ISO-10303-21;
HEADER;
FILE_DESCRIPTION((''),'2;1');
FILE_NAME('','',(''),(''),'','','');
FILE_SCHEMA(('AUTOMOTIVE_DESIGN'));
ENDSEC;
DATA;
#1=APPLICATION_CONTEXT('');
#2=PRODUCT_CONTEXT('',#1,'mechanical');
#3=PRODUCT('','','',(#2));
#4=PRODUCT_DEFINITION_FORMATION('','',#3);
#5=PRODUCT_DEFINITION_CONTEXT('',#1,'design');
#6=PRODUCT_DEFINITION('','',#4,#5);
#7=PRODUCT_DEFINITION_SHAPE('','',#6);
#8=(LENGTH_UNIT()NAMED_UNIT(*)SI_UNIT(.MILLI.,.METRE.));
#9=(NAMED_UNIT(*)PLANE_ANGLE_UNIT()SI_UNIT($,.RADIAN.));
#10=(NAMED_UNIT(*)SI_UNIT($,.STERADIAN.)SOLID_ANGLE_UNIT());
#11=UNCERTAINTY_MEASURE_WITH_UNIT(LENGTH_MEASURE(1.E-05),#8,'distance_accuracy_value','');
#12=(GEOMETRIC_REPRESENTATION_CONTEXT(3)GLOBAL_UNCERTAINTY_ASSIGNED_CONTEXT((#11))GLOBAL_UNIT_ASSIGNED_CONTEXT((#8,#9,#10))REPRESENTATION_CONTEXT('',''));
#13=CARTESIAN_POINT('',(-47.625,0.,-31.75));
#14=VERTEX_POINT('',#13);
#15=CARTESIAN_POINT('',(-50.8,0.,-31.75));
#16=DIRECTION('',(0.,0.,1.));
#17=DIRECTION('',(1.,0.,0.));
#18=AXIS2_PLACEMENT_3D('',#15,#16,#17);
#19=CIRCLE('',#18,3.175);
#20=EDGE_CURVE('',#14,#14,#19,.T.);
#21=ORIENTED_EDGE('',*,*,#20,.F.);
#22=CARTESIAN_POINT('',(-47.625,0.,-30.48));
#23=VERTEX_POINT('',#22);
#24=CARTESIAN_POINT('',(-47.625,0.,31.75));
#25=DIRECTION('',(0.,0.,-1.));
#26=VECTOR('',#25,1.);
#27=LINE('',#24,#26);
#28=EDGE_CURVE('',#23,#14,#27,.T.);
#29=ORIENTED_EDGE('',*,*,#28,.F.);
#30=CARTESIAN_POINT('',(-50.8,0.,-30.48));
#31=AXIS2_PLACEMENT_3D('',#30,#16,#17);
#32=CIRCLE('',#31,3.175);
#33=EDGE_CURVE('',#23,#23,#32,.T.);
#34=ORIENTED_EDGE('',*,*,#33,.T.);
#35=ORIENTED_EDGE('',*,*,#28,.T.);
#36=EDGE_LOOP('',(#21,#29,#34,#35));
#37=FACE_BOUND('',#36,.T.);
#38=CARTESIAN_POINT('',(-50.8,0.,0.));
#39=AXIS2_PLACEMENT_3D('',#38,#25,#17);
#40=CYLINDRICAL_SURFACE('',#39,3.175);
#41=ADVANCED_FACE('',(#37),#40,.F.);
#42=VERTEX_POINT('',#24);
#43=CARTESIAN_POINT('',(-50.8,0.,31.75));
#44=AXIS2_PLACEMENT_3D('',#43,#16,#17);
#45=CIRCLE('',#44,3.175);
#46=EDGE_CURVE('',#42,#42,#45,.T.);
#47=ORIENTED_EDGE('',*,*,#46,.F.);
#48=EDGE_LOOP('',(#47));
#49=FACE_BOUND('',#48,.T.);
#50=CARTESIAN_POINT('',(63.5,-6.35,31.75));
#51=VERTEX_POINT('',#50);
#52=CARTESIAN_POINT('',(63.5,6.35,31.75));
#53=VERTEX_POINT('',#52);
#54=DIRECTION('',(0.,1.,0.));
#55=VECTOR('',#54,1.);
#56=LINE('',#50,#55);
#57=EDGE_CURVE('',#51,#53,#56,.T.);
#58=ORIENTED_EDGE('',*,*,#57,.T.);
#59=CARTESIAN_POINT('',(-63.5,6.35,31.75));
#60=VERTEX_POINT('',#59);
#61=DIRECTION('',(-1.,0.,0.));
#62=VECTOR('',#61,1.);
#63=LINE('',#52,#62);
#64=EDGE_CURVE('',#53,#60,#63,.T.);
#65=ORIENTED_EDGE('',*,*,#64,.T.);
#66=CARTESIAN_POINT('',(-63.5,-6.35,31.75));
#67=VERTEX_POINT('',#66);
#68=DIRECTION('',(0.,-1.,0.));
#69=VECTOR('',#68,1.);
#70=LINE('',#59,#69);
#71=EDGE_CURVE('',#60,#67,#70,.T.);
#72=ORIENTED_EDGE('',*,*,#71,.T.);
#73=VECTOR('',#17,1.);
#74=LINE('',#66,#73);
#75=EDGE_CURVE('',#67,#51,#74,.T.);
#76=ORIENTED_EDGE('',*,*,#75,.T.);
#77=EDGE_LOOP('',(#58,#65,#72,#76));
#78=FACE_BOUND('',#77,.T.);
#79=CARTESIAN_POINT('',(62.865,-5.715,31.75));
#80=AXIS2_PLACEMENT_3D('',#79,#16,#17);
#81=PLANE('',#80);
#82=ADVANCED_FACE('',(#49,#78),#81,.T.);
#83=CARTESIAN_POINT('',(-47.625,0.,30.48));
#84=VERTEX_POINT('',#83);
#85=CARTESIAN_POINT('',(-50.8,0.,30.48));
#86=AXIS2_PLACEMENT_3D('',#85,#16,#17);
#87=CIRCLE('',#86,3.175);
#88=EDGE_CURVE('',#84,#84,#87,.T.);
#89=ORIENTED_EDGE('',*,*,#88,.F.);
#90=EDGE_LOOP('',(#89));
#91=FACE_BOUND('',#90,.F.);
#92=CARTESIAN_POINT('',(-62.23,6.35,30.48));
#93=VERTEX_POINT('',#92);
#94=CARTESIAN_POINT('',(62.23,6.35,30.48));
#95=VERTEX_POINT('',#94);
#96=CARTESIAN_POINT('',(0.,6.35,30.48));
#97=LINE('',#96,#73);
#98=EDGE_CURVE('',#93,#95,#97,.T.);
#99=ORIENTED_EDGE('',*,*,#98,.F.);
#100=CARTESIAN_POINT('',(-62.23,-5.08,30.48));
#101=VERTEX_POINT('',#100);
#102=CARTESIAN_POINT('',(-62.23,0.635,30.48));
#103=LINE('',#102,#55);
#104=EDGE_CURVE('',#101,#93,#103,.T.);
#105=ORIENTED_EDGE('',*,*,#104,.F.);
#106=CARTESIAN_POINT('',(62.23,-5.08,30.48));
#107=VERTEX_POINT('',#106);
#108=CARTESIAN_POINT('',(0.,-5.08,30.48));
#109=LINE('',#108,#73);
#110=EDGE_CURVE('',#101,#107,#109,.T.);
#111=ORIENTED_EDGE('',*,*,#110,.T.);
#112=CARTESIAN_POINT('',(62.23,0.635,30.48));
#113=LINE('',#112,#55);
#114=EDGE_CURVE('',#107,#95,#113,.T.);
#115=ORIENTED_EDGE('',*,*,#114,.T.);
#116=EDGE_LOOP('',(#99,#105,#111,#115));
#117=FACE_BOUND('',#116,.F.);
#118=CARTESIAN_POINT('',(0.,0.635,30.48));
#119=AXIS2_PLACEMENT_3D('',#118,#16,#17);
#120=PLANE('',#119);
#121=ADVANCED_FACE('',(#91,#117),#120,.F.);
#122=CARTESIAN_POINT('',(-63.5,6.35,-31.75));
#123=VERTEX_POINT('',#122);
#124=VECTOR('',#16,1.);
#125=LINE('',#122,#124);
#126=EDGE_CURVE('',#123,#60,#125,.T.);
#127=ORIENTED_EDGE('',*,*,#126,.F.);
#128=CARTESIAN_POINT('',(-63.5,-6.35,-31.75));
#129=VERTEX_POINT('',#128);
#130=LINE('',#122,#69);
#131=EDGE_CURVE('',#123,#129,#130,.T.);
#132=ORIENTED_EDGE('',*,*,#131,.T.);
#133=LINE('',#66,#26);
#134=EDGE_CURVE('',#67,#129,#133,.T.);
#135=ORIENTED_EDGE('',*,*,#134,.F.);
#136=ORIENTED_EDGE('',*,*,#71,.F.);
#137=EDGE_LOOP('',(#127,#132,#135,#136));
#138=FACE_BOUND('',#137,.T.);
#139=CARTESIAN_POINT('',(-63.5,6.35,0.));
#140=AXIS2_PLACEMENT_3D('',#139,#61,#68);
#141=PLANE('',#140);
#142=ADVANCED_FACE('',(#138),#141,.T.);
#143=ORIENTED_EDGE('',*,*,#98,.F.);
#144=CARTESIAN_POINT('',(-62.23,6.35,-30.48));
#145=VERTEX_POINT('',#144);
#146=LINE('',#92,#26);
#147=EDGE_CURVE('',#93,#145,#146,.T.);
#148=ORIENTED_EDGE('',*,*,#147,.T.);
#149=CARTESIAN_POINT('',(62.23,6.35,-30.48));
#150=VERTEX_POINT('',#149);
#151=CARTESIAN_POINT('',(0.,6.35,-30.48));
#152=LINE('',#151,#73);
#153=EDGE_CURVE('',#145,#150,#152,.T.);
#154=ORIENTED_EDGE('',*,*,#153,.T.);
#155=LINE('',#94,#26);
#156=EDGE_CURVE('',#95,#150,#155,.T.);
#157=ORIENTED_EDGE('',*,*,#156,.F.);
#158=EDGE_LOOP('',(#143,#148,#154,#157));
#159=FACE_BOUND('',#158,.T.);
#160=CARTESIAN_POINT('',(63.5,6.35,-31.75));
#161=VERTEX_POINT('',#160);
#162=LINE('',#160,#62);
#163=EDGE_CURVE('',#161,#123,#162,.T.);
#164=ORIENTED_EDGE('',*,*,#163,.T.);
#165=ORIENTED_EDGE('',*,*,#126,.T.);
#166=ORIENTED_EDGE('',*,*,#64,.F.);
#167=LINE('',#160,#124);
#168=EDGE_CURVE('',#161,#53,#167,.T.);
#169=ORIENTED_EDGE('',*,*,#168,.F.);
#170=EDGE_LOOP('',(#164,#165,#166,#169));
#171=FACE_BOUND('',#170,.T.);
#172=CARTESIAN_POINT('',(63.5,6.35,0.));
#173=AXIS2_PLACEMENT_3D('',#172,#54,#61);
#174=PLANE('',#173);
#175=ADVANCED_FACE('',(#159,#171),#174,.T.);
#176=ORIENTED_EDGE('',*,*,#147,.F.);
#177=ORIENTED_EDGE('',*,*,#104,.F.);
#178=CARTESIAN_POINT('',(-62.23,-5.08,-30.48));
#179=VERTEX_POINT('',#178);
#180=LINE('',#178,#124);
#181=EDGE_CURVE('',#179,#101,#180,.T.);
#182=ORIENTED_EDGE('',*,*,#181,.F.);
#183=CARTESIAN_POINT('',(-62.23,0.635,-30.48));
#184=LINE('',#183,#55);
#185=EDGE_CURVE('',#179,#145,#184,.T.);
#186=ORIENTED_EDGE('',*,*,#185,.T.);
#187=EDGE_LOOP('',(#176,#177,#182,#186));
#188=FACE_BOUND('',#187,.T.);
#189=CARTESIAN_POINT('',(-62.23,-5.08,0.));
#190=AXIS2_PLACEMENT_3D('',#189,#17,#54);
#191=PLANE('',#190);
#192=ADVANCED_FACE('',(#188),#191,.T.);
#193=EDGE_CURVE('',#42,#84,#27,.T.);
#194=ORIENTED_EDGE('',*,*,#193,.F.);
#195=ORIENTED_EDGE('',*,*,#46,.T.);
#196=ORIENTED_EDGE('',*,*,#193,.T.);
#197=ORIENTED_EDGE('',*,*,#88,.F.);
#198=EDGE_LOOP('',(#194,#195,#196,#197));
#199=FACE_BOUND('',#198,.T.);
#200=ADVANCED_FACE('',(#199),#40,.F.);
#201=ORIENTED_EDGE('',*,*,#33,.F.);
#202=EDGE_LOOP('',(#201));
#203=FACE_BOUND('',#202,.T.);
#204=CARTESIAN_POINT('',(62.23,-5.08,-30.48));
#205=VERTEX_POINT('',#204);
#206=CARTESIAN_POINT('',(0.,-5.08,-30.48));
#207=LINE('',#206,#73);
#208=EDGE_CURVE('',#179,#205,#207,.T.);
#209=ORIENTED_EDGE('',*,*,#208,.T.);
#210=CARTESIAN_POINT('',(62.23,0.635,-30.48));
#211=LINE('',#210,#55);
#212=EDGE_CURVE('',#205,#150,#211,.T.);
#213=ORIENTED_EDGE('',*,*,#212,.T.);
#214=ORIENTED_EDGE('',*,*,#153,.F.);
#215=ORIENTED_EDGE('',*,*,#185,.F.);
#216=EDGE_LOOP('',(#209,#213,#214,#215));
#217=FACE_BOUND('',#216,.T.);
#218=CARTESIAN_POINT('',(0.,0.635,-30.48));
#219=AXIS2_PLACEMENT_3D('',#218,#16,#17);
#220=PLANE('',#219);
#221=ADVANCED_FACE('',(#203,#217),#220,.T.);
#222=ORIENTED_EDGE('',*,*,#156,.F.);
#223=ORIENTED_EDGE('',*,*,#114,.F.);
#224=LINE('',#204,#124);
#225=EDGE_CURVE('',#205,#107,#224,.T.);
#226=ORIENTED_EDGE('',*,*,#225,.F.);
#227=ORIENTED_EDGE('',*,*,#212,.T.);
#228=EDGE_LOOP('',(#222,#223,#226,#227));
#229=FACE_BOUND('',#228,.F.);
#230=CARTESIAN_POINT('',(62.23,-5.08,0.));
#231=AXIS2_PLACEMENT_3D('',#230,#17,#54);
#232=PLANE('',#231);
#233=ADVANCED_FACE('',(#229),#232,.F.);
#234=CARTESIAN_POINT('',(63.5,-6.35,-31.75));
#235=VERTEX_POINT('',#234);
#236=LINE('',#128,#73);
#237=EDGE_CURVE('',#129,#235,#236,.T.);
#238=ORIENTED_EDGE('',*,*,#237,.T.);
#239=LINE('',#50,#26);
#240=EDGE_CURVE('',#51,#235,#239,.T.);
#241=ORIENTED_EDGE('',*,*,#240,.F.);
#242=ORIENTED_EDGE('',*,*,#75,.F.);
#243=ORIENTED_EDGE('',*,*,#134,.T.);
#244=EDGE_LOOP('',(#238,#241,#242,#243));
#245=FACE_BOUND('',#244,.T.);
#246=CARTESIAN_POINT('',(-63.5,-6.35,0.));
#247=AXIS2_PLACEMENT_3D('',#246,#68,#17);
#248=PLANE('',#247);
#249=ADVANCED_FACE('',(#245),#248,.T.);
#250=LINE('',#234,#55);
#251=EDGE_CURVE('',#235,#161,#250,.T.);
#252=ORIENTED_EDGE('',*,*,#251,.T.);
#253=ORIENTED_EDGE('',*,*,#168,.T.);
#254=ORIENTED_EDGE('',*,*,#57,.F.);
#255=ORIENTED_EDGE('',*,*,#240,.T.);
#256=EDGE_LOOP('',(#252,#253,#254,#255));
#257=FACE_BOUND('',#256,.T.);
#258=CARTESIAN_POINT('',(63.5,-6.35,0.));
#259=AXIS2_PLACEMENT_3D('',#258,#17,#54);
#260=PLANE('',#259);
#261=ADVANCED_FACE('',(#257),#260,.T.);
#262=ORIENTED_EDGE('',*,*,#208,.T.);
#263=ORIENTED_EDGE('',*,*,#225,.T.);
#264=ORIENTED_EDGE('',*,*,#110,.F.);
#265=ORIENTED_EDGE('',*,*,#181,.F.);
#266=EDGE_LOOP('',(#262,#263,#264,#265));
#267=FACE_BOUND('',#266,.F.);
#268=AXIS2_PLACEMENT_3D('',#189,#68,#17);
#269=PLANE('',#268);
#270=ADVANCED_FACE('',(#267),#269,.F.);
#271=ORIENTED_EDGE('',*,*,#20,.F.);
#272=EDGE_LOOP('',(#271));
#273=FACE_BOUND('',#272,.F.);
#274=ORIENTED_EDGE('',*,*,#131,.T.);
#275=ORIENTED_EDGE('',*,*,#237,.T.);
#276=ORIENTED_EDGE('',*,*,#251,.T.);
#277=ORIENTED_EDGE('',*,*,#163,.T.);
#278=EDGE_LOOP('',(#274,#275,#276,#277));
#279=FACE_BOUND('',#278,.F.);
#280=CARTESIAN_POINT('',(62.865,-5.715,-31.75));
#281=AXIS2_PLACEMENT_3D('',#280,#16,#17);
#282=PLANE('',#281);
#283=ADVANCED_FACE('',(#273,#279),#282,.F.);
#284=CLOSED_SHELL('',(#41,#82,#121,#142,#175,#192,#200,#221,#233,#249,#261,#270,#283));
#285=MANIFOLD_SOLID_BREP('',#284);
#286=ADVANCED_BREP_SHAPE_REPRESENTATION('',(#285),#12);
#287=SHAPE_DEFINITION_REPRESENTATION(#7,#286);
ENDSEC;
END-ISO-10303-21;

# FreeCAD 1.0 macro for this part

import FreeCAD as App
import Part
import Sketcher
Q = App.Units.Quantity

doc = App.newDocument("Part")
body = doc.addObject("PartDesign::Body", "Body")

# Sketch on XY plane
sketch1 = body.newObject("Sketcher::SketchObject", "Sketch")
sketch1.AttachmentSupport = (doc.getObject("XY_Plane"), [""])
sketch1.MapMode = "FlatFace"
sketch1.addGeometry([
    Part.LineSegment(App.Vector(63.5, -6.35, 0), App.Vector(63.5, 6.35, 0)),  # 0
    Part.LineSegment(App.Vector(63.5, 6.35, 0), App.Vector(-63.5, 6.35, 0)),  # 1
    Part.LineSegment(App.Vector(-63.5, 6.35, 0), App.Vector(-63.5, -6.35, 0)),  # 2
    Part.LineSegment(App.Vector(-63.5, -6.35, 0), App.Vector(63.5, -6.35, 0)),  # 3
    Part.Circle(App.Vector(-50.8, 0, 0), App.Vector(0, 0, 1), 3.175),  # 4
], False)
sketch1.addConstraint([
    Sketcher.Constraint("Coincident", 0, 2, 1, 1),
    Sketcher.Constraint("Coincident", 1, 2, 2, 1),
    Sketcher.Constraint("Coincident", 2, 2, 3, 1),
    Sketcher.Constraint("Coincident", 3, 2, 0, 1),
    Sketcher.Constraint("Vertical", 0),
    Sketcher.Constraint("Horizontal", 1),
    Sketcher.Constraint("Vertical", 2),
    Sketcher.Constraint("Horizontal", 3),
    Sketcher.Constraint("Symmetric", 0, 2, 2, 2, -1, 1),
    Sketcher.Constraint("PointOnObject", 4, 3, -1),
    Sketcher.Constraint("Diameter", 4, Q("0.25 in")),
    Sketcher.Constraint("DistanceX", 1, 2, 1, 1, Q("5 in")),
    Sketcher.Constraint("DistanceY", 0, 1, 0, 2, Q("0.5 in")),
    Sketcher.Constraint("DistanceX", 4, 3, -1, 1, Q("2 in")),
])
pad1 = body.newObject("PartDesign::Pad", "Pad")
pad1.Profile = sketch1
pad1.Length = Q("2.5 in")
pad1.Midplane = True

# Sketch on XY plane
sketch2 = body.newObject("Sketcher::SketchObject", "Sketch001")
sketch2.AttachmentSupport = (doc.getObject("XY_Plane"), [""])
sketch2.MapMode = "FlatFace"
sketch2.addGeometry([
    Part.LineSegment(App.Vector(-62.23, 6.35, 0), App.Vector(-62.23, -5.08, 0)),  # 0
    Part.LineSegment(App.Vector(-62.23, -5.08, 0), App.Vector(62.23, -5.08, 0)),  # 1
    Part.LineSegment(App.Vector(62.23, -5.08, 0), App.Vector(62.23, 6.35, 0)),  # 2
    Part.LineSegment(App.Vector(62.23, 6.35, 0), App.Vector(-62.23, 6.35, 0)),  # 3
    Part.Circle(App.Vector(-50.8, 0, 0), App.Vector(0, 0, 1), 3.175),  # 4
], False)
sketch2.addConstraint([
    Sketcher.Constraint("Coincident", 0, 2, 1, 1),
    Sketcher.Constraint("Coincident", 1, 2, 2, 1),
    Sketcher.Constraint("Coincident", 2, 2, 3, 1),
    Sketcher.Constraint("Coincident", 3, 2, 0, 1),
    Sketcher.Constraint("Vertical", 0),
    Sketcher.Constraint("Horizontal", 1),
    Sketcher.Constraint("Vertical", 2),
    Sketcher.Constraint("Horizontal", 3),
    Sketcher.Constraint("PointOnObject", 4, 3, -1),
    Sketcher.Constraint("Diameter", 4, Q("0.25 in")),
    Sketcher.Constraint("DistanceX", 1, 1, 1, 2, Q("4.9 in")),
    Sketcher.Constraint("DistanceX", 4, 3, -1, 1, Q("2 in")),
    Sketcher.Constraint("DistanceY", 0, 2, 0, 1, Q("0.45 in")),
    Sketcher.Constraint("DistanceY", 0, 2, -1, 1, Q("0.2 in")),
    Sketcher.Constraint("DistanceX", 0, 2, -1, 1, Q("2.45 in")),
])
pocket1 = body.newObject("PartDesign::Pocket", "Pocket")
pocket1.Profile = sketch2
pocket1.Length = Q("2.4 in")
pocket1.Midplane = True

doc.recompute()
